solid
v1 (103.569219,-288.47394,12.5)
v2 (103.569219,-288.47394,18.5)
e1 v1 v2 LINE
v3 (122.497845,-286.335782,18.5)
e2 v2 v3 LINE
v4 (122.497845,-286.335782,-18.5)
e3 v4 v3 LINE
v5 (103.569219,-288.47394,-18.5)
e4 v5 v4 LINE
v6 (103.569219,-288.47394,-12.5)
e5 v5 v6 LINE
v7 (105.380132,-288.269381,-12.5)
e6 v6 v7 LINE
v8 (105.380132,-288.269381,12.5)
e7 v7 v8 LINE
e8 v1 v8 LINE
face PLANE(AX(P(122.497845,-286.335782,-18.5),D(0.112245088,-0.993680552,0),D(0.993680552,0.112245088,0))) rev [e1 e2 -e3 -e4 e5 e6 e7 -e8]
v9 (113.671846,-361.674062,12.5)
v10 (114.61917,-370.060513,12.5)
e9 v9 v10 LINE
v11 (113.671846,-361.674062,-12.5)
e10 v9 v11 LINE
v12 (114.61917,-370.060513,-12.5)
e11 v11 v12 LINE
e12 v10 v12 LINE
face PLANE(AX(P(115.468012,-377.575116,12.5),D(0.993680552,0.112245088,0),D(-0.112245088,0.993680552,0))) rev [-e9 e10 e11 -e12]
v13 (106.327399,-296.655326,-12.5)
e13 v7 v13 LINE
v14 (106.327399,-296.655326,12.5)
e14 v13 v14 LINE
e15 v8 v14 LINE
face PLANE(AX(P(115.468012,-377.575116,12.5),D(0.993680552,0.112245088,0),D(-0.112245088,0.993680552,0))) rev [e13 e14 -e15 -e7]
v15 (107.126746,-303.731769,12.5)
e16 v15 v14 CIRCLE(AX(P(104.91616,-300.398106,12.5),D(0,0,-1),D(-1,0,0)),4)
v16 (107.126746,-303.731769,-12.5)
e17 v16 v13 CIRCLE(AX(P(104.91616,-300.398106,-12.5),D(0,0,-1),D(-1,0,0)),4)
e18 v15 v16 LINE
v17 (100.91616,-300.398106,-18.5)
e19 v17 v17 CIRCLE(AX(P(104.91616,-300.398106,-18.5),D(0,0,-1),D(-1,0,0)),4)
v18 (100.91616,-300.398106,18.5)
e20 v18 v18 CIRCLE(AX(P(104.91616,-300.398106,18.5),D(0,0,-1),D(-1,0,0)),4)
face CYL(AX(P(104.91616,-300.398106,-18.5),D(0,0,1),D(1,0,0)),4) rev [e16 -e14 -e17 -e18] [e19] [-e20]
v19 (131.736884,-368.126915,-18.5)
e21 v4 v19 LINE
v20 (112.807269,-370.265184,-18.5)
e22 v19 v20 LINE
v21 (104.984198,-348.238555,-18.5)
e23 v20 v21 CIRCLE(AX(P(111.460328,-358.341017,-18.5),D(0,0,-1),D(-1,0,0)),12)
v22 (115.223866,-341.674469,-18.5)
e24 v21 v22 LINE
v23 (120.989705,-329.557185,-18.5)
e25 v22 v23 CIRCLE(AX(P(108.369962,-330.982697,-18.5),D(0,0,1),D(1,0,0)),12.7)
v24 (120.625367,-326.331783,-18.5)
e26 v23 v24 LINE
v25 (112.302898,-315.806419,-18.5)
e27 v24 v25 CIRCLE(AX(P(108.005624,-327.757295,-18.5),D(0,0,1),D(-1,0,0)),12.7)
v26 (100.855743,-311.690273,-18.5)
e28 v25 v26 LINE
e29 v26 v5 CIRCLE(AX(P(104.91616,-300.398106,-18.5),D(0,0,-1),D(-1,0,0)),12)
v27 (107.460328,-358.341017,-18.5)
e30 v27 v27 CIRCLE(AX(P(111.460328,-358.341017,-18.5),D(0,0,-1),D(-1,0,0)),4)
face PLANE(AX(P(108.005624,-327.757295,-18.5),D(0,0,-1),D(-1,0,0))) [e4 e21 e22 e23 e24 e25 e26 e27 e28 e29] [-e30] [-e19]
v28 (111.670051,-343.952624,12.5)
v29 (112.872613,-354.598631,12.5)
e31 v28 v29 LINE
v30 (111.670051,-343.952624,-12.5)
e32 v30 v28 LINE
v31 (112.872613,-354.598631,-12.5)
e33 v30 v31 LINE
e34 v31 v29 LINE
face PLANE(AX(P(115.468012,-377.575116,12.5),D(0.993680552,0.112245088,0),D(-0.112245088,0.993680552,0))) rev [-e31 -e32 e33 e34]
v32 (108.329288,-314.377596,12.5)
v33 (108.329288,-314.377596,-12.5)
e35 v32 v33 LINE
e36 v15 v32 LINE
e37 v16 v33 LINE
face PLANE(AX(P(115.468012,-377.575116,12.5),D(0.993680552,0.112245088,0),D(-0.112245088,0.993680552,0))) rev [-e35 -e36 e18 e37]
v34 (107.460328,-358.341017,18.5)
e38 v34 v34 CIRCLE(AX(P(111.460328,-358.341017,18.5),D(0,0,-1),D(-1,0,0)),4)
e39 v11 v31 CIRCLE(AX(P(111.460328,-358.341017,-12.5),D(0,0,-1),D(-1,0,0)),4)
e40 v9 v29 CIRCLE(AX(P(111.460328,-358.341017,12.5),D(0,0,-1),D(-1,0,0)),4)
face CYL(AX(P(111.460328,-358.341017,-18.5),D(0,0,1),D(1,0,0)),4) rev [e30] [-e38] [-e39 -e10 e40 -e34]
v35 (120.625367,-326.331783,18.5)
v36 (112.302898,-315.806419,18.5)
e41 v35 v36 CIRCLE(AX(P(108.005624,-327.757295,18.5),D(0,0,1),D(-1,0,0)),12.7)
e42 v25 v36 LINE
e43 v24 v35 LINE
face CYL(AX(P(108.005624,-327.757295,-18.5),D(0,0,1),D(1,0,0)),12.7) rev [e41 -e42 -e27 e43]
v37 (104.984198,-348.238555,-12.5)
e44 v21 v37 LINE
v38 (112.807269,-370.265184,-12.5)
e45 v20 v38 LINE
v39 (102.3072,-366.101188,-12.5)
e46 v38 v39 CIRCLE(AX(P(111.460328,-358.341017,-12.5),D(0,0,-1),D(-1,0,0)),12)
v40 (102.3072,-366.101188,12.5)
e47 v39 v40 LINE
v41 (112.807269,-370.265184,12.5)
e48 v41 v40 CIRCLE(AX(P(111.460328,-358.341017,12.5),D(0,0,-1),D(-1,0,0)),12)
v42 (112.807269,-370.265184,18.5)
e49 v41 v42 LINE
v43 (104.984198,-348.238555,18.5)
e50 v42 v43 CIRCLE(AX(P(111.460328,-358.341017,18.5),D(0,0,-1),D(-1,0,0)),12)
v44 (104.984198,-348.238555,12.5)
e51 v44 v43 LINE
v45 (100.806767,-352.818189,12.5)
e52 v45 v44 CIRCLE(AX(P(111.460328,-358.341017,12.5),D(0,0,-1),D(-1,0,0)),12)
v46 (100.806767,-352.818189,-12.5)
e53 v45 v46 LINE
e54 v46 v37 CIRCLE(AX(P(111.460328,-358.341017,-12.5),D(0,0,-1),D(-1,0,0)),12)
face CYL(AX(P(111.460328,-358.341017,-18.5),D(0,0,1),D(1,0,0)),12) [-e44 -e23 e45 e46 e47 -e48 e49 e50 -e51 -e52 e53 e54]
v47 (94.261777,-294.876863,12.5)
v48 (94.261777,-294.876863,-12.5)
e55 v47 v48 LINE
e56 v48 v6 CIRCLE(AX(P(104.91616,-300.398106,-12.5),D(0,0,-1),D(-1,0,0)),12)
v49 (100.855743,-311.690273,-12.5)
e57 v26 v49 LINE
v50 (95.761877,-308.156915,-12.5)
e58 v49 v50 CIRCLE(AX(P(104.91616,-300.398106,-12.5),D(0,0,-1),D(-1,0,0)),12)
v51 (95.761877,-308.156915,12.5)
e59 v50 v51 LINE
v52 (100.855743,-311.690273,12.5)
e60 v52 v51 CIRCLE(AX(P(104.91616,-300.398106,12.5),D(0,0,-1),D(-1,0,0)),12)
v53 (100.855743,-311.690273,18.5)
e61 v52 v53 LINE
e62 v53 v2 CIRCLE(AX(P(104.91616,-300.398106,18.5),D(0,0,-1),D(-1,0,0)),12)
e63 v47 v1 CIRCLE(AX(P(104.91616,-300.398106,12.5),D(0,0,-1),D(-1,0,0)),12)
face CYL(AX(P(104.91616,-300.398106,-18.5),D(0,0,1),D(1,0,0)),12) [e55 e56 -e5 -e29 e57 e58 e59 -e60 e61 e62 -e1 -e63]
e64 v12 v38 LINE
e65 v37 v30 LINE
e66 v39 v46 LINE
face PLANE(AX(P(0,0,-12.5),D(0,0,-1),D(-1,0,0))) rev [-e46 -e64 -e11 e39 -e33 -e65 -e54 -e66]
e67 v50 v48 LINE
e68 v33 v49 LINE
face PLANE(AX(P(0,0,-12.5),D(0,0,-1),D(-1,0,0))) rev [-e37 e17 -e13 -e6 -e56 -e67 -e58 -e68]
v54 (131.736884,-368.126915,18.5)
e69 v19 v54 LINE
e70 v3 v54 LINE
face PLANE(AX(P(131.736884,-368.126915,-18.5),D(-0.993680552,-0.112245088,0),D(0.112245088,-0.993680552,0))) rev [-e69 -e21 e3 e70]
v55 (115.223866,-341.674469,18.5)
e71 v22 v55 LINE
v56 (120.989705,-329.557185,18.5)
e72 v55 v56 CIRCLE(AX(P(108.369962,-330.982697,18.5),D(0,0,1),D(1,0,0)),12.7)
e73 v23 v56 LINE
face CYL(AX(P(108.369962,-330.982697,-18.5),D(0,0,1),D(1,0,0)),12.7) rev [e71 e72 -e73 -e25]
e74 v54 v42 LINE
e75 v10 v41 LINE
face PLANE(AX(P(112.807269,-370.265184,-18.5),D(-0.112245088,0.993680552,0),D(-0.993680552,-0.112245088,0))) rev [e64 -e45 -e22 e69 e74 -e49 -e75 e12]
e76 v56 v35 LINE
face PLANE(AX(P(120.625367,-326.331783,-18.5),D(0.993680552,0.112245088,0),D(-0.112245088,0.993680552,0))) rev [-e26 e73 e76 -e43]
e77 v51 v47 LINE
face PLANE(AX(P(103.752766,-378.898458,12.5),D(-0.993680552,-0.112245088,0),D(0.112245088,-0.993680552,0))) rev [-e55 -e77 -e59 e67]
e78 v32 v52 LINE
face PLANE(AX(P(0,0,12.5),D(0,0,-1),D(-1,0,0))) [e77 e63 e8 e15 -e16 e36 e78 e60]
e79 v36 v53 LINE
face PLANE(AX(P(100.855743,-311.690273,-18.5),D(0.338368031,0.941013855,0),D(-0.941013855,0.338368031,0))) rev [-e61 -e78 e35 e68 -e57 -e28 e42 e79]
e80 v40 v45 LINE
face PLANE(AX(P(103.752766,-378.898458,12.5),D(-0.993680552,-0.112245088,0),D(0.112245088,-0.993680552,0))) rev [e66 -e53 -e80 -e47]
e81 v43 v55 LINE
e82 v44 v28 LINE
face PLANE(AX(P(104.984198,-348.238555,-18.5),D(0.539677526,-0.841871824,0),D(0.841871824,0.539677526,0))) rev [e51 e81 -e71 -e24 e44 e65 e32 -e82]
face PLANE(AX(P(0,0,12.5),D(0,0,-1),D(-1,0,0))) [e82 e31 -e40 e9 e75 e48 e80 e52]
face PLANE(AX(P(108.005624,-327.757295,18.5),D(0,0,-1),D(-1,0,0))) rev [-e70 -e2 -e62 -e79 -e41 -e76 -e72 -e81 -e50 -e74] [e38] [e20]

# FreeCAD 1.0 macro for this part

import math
import FreeCAD as App
import Part
import Sketcher
from FreeCAD import Vector
Q = App.Units.Quantity

doc = App.newDocument("Part")
body = doc.addObject("PartDesign::Body", "Body")

sketch1 = body.newObject("Sketcher::SketchObject", "Sketch")
sketch1.AttachmentSupport = (doc.getObject("XY_Plane"), [""])
sketch1.MapMode = "FlatFace"
sketch1.addGeometry([
    Part.LineSegment(Vector(131.736884, -368.126915, 0), Vector(112.807269, -370.265184, 0)),
    Part.ArcOfCircle(Part.Circle(Vector(111.460328, -358.341017, 0), Vector(0, 0, 1), 12), math.radians(122.661689), math.radians(276.444751)),
    Part.LineSegment(Vector(104.984198, -348.238555, 0), Vector(115.223866, -341.674469, 0)),
    Part.ArcOfCircle(Part.Circle(Vector(108.369962, -330.982697, 0), Vector(0, 0, 1), 12.7), math.radians(-57.338311), math.radians(6.444751)),
    Part.LineSegment(Vector(120.989705, -329.557185, 0), Vector(120.625367, -326.331783, 0)),
    Part.ArcOfCircle(Part.Circle(Vector(108.005624, -327.757295, 0), Vector(0, 0, 1), 12.7), math.radians(6.444751), math.radians(70.222523)),
    Part.LineSegment(Vector(112.302898, -315.806419, 0), Vector(100.855743, -311.690273, 0)),
    Part.ArcOfCircle(Part.Circle(Vector(104.91616, -300.398106, 0), Vector(0, 0, 1), 12), math.radians(96.444751), math.radians(250.222523)),
    Part.LineSegment(Vector(103.569218, -288.47394, 0), Vector(122.497845, -286.335782, 0)),
    Part.LineSegment(Vector(122.497845, -286.335782, 0), Vector(131.736884, -368.126915, 0)),
    Part.Circle(Vector(104.91616, -300.398106, 0), Vector(0, 0, 1), 4),
    Part.Circle(Vector(111.460328, -358.341017, 0), Vector(0, 0, 1), 4),
], False)
sketch1.addConstraint([
    Sketcher.Constraint("Tangent", 0, 2, 1, 2),
    Sketcher.Constraint("Tangent", 1, 1, 2, 1),
    Sketcher.Constraint("Tangent", 2, 2, 3, 1),
    Sketcher.Constraint("Tangent", 3, 2, 4, 1),
    Sketcher.Constraint("Tangent", 4, 2, 5, 1),
    Sketcher.Constraint("Tangent", 5, 2, 6, 1),
    Sketcher.Constraint("Tangent", 6, 2, 7, 2),
    Sketcher.Constraint("Tangent", 7, 1, 8, 1),
    Sketcher.Constraint("Coincident", 8, 2, 9, 1),
    Sketcher.Constraint("Coincident", 9, 2, 0, 1),
    Sketcher.Constraint("Coincident", 10, 3, 7, 3),
    Sketcher.Constraint("Coincident", 11, 3, 1, 3),
    Sketcher.Constraint("Equal", 3, 5),
    Sketcher.Constraint("Equal", 1, 7),
    Sketcher.Constraint("Equal", 10, 11),
    Sketcher.Constraint("Perpendicular", 0, 4),
    Sketcher.Constraint("Perpendicular", 4, 8),
    Sketcher.Constraint("Perpendicular", 8, 9),
    Sketcher.Constraint("Diameter", 10, Q("8 mm")),
    Sketcher.Constraint("Radius", 1, Q("12 mm")),
    Sketcher.Constraint("Radius", 3, Q("12.7 mm")),
    Sketcher.Constraint("Distance", 0, Q("19.05 mm")),
    Sketcher.Constraint("DistanceY", 3, 3, 5, 3, Q("3.225402 mm")),
    Sketcher.Constraint("DistanceX", 2, 2, 4, 2, Q("5.4015 mm")),
    Sketcher.Constraint("DistanceX", -1, 1, 1, 3, Q("111.460328 mm")),
    Sketcher.Constraint("DistanceX", -1, 1, 3, 3, Q("108.369962 mm")),
    Sketcher.Constraint("DistanceX", -1, 1, 7, 3, Q("104.91616 mm")),
    Sketcher.Constraint("DistanceX", -1, 1, 0, 2, Q("112.807269 mm")),
    Sketcher.Constraint("DistanceY", 2, 2, -1, 1, Q("341.674469 mm")),
    Sketcher.Constraint("DistanceY", 5, 2, -1, 1, Q("315.806419 mm")),
])
pad1 = body.newObject("PartDesign::Pad", "Pad")
pad1.Profile = sketch1
pad1.Length = 37
pad1.Midplane = True

sketch2 = body.newObject("Sketcher::SketchObject", "Sketch001")
sketch2.AttachmentSupport = (doc.getObject("XY_Plane"), [""])
sketch2.MapMode = "FlatFace"
sketch2.addGeometry([
    Part.LineSegment(Vector(103.752766, -378.898458, 0), Vector(92.976668, -283.500085, 0)),
    Part.LineSegment(Vector(92.976668, -283.500085, 0), Vector(104.691914, -282.176744, 0)),
    Part.LineSegment(Vector(104.691914, -282.176744, 0), Vector(115.468012, -377.575116, 0)),
    Part.LineSegment(Vector(115.468012, -377.575116, 0), Vector(103.752766, -378.898458, 0)),
], False)
sketch2.addConstraint([
    Sketcher.Constraint("Coincident", 0, 2, 1, 1),
    Sketcher.Constraint("Coincident", 1, 2, 2, 1),
    Sketcher.Constraint("Coincident", 2, 2, 3, 1),
    Sketcher.Constraint("Coincident", 3, 2, 0, 1),
    Sketcher.Constraint("Perpendicular", 0, 1),
    Sketcher.Constraint("Perpendicular", 1, 2),
    Sketcher.Constraint("Perpendicular", 2, 3),
    Sketcher.Constraint("Distance", 0, Q("96.005072 mm")),
    Sketcher.Constraint("Distance", 1, Q("11.78975 mm")),
    Sketcher.Constraint("DistanceX", -1, 1, 0, 2, Q("92.976668 mm")),
    Sketcher.Constraint("DistanceX", -1, 1, 2, 2, Q("115.468012 mm")),
    Sketcher.Constraint("DistanceY", 0, 2, -1, 1, Q("283.500085 mm")),
])
pocket1 = body.newObject("PartDesign::Pocket", "Pocket")
pocket1.Profile = sketch2
pocket1.Length = 25
pocket1.Midplane = True

doc.recompute()
